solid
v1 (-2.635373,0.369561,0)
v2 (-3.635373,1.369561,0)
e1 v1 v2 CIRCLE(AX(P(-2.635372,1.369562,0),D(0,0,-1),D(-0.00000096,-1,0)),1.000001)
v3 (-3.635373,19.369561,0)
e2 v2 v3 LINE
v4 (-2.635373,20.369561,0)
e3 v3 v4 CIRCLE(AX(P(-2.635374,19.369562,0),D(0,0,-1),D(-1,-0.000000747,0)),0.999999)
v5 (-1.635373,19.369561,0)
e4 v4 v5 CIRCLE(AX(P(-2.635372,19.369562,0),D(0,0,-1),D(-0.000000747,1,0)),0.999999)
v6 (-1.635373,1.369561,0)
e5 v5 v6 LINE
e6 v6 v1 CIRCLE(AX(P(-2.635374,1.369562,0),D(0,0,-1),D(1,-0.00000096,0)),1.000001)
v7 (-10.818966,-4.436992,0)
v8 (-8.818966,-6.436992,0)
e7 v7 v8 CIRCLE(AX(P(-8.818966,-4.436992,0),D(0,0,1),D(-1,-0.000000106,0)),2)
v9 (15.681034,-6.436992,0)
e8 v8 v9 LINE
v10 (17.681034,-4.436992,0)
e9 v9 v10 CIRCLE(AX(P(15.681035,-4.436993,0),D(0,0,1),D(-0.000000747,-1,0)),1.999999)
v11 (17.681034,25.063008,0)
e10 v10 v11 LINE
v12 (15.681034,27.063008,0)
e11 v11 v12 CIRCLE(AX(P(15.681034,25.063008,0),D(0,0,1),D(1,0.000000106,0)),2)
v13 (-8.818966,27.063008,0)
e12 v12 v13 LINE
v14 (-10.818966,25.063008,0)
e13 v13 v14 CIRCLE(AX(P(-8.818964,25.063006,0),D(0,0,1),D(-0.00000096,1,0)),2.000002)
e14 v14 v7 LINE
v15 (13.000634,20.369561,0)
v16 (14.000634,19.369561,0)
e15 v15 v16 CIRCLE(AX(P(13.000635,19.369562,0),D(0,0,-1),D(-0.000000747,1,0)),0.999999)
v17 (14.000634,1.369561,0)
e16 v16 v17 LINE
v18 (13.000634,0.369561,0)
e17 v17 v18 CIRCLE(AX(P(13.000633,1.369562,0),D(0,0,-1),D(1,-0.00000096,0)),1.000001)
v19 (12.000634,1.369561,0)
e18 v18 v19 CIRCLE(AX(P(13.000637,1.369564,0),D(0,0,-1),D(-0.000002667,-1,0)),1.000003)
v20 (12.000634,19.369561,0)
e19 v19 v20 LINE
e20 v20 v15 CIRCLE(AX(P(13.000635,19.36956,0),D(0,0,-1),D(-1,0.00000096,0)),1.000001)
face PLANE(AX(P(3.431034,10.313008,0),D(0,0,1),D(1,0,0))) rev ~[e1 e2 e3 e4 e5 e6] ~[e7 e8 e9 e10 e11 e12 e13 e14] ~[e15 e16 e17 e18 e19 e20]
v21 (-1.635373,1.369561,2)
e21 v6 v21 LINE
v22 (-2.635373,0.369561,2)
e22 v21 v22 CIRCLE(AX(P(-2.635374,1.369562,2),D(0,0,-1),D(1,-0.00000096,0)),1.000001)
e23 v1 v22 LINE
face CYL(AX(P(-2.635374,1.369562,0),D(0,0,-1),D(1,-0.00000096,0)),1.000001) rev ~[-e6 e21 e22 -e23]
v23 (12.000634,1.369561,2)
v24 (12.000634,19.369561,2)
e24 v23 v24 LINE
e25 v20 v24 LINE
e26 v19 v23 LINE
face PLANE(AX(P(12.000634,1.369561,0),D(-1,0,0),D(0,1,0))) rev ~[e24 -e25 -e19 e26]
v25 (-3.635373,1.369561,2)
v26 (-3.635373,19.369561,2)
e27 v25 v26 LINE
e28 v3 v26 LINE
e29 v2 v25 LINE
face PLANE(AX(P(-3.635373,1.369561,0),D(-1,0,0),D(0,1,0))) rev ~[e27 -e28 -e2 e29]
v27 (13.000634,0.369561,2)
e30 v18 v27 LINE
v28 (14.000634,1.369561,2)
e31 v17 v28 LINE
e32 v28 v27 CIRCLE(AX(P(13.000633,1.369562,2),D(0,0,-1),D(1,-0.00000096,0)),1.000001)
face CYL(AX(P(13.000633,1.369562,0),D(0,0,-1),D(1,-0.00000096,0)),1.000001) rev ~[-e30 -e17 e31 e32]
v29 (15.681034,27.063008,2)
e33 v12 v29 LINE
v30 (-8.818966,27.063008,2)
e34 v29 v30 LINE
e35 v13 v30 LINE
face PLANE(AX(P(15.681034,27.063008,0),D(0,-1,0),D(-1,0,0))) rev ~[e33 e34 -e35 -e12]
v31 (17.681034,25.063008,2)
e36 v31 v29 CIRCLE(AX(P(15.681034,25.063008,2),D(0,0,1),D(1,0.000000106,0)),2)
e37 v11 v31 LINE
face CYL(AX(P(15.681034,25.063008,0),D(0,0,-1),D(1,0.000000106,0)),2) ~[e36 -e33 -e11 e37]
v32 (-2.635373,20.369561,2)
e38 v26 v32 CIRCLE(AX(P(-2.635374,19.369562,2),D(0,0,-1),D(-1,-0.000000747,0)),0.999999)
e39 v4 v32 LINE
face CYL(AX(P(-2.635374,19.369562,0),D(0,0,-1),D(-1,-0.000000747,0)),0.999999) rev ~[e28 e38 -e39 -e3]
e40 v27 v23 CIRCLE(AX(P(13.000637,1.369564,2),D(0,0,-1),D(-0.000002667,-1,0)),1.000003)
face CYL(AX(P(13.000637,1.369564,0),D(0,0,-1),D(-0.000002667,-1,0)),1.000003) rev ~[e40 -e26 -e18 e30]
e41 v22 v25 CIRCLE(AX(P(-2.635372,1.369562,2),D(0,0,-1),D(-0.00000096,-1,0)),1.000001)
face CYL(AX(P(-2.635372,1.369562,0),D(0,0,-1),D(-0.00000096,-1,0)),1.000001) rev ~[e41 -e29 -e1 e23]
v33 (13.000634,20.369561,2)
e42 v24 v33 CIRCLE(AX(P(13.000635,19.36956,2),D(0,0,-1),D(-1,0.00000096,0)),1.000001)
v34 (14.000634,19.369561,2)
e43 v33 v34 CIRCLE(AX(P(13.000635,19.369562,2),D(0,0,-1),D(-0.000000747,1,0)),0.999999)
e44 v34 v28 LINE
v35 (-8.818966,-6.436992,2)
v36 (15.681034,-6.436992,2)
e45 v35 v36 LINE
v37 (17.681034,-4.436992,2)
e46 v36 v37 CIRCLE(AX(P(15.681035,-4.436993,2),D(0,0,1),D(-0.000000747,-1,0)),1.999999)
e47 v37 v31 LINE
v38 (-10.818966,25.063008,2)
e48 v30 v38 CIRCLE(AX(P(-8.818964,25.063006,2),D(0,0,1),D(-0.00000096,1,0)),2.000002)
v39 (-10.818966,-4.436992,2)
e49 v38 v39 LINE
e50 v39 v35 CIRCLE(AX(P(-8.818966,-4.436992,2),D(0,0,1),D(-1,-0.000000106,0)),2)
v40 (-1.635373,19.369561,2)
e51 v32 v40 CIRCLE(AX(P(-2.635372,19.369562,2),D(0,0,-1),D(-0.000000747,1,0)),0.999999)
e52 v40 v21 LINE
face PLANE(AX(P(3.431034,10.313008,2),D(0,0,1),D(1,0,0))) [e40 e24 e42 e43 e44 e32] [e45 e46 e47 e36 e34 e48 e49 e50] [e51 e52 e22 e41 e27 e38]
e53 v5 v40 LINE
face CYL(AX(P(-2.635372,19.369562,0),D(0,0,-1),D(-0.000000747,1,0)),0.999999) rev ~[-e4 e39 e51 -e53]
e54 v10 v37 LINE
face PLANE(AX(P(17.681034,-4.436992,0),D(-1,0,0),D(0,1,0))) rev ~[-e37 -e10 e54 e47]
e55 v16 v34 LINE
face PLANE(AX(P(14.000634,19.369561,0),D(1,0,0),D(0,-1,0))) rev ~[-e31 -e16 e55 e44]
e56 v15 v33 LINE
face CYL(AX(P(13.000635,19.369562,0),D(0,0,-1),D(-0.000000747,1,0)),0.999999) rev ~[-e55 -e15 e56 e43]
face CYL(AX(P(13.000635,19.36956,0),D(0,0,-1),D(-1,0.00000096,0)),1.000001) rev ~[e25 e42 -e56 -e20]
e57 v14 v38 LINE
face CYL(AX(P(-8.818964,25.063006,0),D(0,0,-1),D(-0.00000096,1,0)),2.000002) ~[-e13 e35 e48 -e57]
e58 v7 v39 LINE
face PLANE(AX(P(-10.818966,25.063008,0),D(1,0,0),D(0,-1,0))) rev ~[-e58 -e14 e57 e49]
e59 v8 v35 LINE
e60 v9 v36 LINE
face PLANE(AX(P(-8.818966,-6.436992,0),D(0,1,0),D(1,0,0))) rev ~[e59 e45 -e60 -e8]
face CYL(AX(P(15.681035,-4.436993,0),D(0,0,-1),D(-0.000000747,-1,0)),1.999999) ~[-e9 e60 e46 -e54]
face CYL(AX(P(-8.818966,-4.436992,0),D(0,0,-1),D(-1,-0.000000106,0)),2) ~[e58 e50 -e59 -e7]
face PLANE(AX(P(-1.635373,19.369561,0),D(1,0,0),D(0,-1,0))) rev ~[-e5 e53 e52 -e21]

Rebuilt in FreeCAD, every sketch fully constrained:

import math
import FreeCAD as App
import Part
import Sketcher

V = App.Vector
Q = App.Units.Quantity

doc = App.newDocument("Part")
params = doc.addObject("Spreadsheet::Sheet", "Params")
for row, (alias, value) in enumerate([
    ("sketch1_radius", "2 mm"),
    ("sketch1_radius2", "1.000001 mm"),
    ("sketch1_height", "18 mm"),
    ("sketch1_width", "24.5 mm"),
    ("sketch1_height2", "29.5 mm"),
    ("pad1_length", "2 mm"),
], start=1):
    params.set(f"A{row}", alias)
    params.set(f"B{row}", "=" + value)
    params.setAlias(f"B{row}", alias)

body = doc.addObject("PartDesign::Body", "Body")

sketch1 = doc.addObject("Sketcher::SketchObject", "Sketch")
body.addObject(sketch1)
sketch1.AttachmentSupport = (doc.XY_Plane, [""])
sketch1.MapMode = "FlatFace"
sketch1.addGeometry([
    Part.ArcOfCircle(Part.Circle(V(-8.818966, -4.436992, 0), V(0, 0, 1), 2), math.radians(-179.999994), math.radians(-90.000006)),
    Part.LineSegment(V(-8.818966, -6.436992, 0), V(15.681034, -6.436992, 0)),
    Part.ArcOfCircle(Part.Circle(V(15.681035, -4.436993, 0), V(0, 0, 1), 1.999999), math.radians(-90.000043), math.radians(0.000043)),
    Part.LineSegment(V(17.681034, -4.436992, 0), V(17.681034, 25.063008, 0)),
    Part.ArcOfCircle(Part.Circle(V(15.681034, 25.063008, 0), V(0, 0, 1), 2), math.radians(0.000006), math.radians(89.999994)),
    Part.LineSegment(V(15.681034, 27.063008, 0), V(-8.818966, 27.063008, 0)),
    Part.ArcOfCircle(Part.Circle(V(-8.818964, 25.063006, 0), V(0, 0, 1), 2.000002), math.radians(90.000055), math.radians(179.999945)),
    Part.LineSegment(V(-10.818966, 25.063008, 0), V(-10.818966, -4.436992, 0)),
    Part.ArcOfCircle(Part.Circle(V(-2.635372, 1.369562, 0), V(0, 0, 1), 1.000001), math.radians(-179.999945), math.radians(-90.000055)),
    Part.LineSegment(V(-3.635373, 1.369561, 0), V(-3.635373, 19.369561, 0)),
    Part.ArcOfCircle(Part.Circle(V(-2.635374, 19.369562, 0), V(0, 0, 1), 0.999999), math.radians(89.999957), math.radians(180.000043)),
    Part.ArcOfCircle(Part.Circle(V(-2.635372, 19.369562, 0), V(0, 0, 1), 0.999999), math.radians(-0.000043), math.radians(90.000043)),
    Part.LineSegment(V(-1.635373, 19.369561, 0), V(-1.635373, 1.369561, 0)),
    Part.ArcOfCircle(Part.Circle(V(-2.635374, 1.369562, 0), V(0, 0, 1), 1.000001), math.radians(-89.999945), math.radians(-0.000055)),
    Part.ArcOfCircle(Part.Circle(V(13.000637, 1.369564, 0), V(0, 0, 1), 1.000003), math.radians(-179.999847), math.radians(-90.000153)),
    Part.LineSegment(V(12.000634, 1.369561, 0), V(12.000634, 19.369561, 0)),
    Part.ArcOfCircle(Part.Circle(V(13.000635, 19.36956, 0), V(0, 0, 1), 1.000001), math.radians(90.000055), math.radians(179.999945)),
    Part.ArcOfCircle(Part.Circle(V(13.000635, 19.369562, 0), V(0, 0, 1), 0.999999), math.radians(-0.000043), math.radians(90.000043)),
    Part.LineSegment(V(14.000634, 19.369561, 0), V(14.000634, 1.369561, 0)),
    Part.ArcOfCircle(Part.Circle(V(13.000633, 1.369562, 0), V(0, 0, 1), 1.000001), math.radians(-89.999945), math.radians(-0.000055)),
], False)
sketch1.addConstraint([
    Sketcher.Constraint("Tangent", 0, 2, 1, 1),
    Sketcher.Constraint("Tangent", 1, 2, 2, 1),
    Sketcher.Constraint("Tangent", 2, 2, 3, 1),
    Sketcher.Constraint("Tangent", 3, 2, 4, 1),
    Sketcher.Constraint("Tangent", 4, 2, 5, 1),
    Sketcher.Constraint("Tangent", 5, 2, 6, 1),
    Sketcher.Constraint("Tangent", 6, 2, 7, 1),
    Sketcher.Constraint("Tangent", 7, 2, 0, 1),
    Sketcher.Constraint("Tangent", 8, 1, 9, 1),
    Sketcher.Constraint("Tangent", 9, 2, 10, 2),
    Sketcher.Constraint("Tangent", 10, 1, 11, 2),
    Sketcher.Constraint("Tangent", 11, 1, 12, 1),
    Sketcher.Constraint("Tangent", 12, 2, 13, 2),
    Sketcher.Constraint("Tangent", 13, 1, 8, 2),
    Sketcher.Constraint("Coincident", 14, 1, 15, 1),
    Sketcher.Constraint("Tangent", 15, 2, 16, 2),
    Sketcher.Constraint("Tangent", 16, 1, 17, 2),
    Sketcher.Constraint("Tangent", 17, 1, 18, 1),
    Sketcher.Constraint("Tangent", 18, 2, 19, 2),
    Sketcher.Constraint("Coincident", 19, 1, 14, 2),
    Sketcher.Constraint("Horizontal", 1),
    Sketcher.Constraint("Vertical", 3),
    Sketcher.Constraint("Horizontal", 5),
    Sketcher.Constraint("Vertical", 7),
    Sketcher.Constraint("Vertical", 9),
    Sketcher.Constraint("Vertical", 12),
    Sketcher.Constraint("Vertical", 15),
    Sketcher.Constraint("Vertical", 18),
    Sketcher.Constraint("Coincident", 19, 3, 14, 3),
    Sketcher.Constraint("Equal", 0, 2),
    Sketcher.Constraint("Equal", 2, 4),
    Sketcher.Constraint("Equal", 4, 6),
    Sketcher.Constraint("Equal", 8, 10),
    Sketcher.Constraint("Equal", 10, 11),
    Sketcher.Constraint("Equal", 13, 14),
    Sketcher.Constraint("Equal", 14, 16),
    Sketcher.Constraint("Horizontal", 13, 3, 14, 3),
    Sketcher.Constraint("Horizontal", 11, 3, 16, 3),
    Sketcher.Constraint("Horizontal", 12, 2, 14, 1),
    Sketcher.Constraint("Vertical", 13, 3, 10, 1),
    Sketcher.Constraint("Vertical", 10, 1, 13, 1),
    Sketcher.Constraint("Vertical", 19, 3, 16, 1),
    Sketcher.Constraint("Vertical", 16, 1, 19, 1),
    Sketcher.Constraint("Radius", 0, Q("2 mm")),
    Sketcher.Constraint("Radius", 8, Q("1.000001 mm")),
    Sketcher.Constraint("DistanceY", 9, 1, 9, 2, Q("18 mm")),
    Sketcher.Constraint("DistanceX", 1, 1, 1, 2, Q("24.5 mm")),
    Sketcher.Constraint("DistanceY", 3, 1, 3, 2, Q("29.5 mm")),
    Sketcher.Constraint("DistanceX", 14, 3, 2, 3, Q("2.680399 mm")),
    Sketcher.Constraint("DistanceY", 0, 3, -1, 1, Q("4.436992 mm")),
    Sketcher.Constraint("DistanceY", -1, 1, 8, 3, Q("1.369562 mm")),
    Sketcher.Constraint("DistanceX", 6, 3, 10, 3, Q("6.18359 mm")),
    Sketcher.Constraint("DistanceX", 0, 3, -1, 1, Q("8.818966 mm")),
])
sketch1.setExpression("Constraints[43]", "Params.sketch1_radius")
sketch1.setExpression("Constraints[44]", "Params.sketch1_radius2")
sketch1.setExpression("Constraints[45]", "Params.sketch1_height")
sketch1.setExpression("Constraints[46]", "Params.sketch1_width")
sketch1.setExpression("Constraints[47]", "Params.sketch1_height2")
pad1 = doc.addObject("PartDesign::Pad", "Pad")
body.addObject(pad1)
pad1.Profile = sketch1
pad1.setExpression("Length", "Params.pad1_length")

doc.recompute()
